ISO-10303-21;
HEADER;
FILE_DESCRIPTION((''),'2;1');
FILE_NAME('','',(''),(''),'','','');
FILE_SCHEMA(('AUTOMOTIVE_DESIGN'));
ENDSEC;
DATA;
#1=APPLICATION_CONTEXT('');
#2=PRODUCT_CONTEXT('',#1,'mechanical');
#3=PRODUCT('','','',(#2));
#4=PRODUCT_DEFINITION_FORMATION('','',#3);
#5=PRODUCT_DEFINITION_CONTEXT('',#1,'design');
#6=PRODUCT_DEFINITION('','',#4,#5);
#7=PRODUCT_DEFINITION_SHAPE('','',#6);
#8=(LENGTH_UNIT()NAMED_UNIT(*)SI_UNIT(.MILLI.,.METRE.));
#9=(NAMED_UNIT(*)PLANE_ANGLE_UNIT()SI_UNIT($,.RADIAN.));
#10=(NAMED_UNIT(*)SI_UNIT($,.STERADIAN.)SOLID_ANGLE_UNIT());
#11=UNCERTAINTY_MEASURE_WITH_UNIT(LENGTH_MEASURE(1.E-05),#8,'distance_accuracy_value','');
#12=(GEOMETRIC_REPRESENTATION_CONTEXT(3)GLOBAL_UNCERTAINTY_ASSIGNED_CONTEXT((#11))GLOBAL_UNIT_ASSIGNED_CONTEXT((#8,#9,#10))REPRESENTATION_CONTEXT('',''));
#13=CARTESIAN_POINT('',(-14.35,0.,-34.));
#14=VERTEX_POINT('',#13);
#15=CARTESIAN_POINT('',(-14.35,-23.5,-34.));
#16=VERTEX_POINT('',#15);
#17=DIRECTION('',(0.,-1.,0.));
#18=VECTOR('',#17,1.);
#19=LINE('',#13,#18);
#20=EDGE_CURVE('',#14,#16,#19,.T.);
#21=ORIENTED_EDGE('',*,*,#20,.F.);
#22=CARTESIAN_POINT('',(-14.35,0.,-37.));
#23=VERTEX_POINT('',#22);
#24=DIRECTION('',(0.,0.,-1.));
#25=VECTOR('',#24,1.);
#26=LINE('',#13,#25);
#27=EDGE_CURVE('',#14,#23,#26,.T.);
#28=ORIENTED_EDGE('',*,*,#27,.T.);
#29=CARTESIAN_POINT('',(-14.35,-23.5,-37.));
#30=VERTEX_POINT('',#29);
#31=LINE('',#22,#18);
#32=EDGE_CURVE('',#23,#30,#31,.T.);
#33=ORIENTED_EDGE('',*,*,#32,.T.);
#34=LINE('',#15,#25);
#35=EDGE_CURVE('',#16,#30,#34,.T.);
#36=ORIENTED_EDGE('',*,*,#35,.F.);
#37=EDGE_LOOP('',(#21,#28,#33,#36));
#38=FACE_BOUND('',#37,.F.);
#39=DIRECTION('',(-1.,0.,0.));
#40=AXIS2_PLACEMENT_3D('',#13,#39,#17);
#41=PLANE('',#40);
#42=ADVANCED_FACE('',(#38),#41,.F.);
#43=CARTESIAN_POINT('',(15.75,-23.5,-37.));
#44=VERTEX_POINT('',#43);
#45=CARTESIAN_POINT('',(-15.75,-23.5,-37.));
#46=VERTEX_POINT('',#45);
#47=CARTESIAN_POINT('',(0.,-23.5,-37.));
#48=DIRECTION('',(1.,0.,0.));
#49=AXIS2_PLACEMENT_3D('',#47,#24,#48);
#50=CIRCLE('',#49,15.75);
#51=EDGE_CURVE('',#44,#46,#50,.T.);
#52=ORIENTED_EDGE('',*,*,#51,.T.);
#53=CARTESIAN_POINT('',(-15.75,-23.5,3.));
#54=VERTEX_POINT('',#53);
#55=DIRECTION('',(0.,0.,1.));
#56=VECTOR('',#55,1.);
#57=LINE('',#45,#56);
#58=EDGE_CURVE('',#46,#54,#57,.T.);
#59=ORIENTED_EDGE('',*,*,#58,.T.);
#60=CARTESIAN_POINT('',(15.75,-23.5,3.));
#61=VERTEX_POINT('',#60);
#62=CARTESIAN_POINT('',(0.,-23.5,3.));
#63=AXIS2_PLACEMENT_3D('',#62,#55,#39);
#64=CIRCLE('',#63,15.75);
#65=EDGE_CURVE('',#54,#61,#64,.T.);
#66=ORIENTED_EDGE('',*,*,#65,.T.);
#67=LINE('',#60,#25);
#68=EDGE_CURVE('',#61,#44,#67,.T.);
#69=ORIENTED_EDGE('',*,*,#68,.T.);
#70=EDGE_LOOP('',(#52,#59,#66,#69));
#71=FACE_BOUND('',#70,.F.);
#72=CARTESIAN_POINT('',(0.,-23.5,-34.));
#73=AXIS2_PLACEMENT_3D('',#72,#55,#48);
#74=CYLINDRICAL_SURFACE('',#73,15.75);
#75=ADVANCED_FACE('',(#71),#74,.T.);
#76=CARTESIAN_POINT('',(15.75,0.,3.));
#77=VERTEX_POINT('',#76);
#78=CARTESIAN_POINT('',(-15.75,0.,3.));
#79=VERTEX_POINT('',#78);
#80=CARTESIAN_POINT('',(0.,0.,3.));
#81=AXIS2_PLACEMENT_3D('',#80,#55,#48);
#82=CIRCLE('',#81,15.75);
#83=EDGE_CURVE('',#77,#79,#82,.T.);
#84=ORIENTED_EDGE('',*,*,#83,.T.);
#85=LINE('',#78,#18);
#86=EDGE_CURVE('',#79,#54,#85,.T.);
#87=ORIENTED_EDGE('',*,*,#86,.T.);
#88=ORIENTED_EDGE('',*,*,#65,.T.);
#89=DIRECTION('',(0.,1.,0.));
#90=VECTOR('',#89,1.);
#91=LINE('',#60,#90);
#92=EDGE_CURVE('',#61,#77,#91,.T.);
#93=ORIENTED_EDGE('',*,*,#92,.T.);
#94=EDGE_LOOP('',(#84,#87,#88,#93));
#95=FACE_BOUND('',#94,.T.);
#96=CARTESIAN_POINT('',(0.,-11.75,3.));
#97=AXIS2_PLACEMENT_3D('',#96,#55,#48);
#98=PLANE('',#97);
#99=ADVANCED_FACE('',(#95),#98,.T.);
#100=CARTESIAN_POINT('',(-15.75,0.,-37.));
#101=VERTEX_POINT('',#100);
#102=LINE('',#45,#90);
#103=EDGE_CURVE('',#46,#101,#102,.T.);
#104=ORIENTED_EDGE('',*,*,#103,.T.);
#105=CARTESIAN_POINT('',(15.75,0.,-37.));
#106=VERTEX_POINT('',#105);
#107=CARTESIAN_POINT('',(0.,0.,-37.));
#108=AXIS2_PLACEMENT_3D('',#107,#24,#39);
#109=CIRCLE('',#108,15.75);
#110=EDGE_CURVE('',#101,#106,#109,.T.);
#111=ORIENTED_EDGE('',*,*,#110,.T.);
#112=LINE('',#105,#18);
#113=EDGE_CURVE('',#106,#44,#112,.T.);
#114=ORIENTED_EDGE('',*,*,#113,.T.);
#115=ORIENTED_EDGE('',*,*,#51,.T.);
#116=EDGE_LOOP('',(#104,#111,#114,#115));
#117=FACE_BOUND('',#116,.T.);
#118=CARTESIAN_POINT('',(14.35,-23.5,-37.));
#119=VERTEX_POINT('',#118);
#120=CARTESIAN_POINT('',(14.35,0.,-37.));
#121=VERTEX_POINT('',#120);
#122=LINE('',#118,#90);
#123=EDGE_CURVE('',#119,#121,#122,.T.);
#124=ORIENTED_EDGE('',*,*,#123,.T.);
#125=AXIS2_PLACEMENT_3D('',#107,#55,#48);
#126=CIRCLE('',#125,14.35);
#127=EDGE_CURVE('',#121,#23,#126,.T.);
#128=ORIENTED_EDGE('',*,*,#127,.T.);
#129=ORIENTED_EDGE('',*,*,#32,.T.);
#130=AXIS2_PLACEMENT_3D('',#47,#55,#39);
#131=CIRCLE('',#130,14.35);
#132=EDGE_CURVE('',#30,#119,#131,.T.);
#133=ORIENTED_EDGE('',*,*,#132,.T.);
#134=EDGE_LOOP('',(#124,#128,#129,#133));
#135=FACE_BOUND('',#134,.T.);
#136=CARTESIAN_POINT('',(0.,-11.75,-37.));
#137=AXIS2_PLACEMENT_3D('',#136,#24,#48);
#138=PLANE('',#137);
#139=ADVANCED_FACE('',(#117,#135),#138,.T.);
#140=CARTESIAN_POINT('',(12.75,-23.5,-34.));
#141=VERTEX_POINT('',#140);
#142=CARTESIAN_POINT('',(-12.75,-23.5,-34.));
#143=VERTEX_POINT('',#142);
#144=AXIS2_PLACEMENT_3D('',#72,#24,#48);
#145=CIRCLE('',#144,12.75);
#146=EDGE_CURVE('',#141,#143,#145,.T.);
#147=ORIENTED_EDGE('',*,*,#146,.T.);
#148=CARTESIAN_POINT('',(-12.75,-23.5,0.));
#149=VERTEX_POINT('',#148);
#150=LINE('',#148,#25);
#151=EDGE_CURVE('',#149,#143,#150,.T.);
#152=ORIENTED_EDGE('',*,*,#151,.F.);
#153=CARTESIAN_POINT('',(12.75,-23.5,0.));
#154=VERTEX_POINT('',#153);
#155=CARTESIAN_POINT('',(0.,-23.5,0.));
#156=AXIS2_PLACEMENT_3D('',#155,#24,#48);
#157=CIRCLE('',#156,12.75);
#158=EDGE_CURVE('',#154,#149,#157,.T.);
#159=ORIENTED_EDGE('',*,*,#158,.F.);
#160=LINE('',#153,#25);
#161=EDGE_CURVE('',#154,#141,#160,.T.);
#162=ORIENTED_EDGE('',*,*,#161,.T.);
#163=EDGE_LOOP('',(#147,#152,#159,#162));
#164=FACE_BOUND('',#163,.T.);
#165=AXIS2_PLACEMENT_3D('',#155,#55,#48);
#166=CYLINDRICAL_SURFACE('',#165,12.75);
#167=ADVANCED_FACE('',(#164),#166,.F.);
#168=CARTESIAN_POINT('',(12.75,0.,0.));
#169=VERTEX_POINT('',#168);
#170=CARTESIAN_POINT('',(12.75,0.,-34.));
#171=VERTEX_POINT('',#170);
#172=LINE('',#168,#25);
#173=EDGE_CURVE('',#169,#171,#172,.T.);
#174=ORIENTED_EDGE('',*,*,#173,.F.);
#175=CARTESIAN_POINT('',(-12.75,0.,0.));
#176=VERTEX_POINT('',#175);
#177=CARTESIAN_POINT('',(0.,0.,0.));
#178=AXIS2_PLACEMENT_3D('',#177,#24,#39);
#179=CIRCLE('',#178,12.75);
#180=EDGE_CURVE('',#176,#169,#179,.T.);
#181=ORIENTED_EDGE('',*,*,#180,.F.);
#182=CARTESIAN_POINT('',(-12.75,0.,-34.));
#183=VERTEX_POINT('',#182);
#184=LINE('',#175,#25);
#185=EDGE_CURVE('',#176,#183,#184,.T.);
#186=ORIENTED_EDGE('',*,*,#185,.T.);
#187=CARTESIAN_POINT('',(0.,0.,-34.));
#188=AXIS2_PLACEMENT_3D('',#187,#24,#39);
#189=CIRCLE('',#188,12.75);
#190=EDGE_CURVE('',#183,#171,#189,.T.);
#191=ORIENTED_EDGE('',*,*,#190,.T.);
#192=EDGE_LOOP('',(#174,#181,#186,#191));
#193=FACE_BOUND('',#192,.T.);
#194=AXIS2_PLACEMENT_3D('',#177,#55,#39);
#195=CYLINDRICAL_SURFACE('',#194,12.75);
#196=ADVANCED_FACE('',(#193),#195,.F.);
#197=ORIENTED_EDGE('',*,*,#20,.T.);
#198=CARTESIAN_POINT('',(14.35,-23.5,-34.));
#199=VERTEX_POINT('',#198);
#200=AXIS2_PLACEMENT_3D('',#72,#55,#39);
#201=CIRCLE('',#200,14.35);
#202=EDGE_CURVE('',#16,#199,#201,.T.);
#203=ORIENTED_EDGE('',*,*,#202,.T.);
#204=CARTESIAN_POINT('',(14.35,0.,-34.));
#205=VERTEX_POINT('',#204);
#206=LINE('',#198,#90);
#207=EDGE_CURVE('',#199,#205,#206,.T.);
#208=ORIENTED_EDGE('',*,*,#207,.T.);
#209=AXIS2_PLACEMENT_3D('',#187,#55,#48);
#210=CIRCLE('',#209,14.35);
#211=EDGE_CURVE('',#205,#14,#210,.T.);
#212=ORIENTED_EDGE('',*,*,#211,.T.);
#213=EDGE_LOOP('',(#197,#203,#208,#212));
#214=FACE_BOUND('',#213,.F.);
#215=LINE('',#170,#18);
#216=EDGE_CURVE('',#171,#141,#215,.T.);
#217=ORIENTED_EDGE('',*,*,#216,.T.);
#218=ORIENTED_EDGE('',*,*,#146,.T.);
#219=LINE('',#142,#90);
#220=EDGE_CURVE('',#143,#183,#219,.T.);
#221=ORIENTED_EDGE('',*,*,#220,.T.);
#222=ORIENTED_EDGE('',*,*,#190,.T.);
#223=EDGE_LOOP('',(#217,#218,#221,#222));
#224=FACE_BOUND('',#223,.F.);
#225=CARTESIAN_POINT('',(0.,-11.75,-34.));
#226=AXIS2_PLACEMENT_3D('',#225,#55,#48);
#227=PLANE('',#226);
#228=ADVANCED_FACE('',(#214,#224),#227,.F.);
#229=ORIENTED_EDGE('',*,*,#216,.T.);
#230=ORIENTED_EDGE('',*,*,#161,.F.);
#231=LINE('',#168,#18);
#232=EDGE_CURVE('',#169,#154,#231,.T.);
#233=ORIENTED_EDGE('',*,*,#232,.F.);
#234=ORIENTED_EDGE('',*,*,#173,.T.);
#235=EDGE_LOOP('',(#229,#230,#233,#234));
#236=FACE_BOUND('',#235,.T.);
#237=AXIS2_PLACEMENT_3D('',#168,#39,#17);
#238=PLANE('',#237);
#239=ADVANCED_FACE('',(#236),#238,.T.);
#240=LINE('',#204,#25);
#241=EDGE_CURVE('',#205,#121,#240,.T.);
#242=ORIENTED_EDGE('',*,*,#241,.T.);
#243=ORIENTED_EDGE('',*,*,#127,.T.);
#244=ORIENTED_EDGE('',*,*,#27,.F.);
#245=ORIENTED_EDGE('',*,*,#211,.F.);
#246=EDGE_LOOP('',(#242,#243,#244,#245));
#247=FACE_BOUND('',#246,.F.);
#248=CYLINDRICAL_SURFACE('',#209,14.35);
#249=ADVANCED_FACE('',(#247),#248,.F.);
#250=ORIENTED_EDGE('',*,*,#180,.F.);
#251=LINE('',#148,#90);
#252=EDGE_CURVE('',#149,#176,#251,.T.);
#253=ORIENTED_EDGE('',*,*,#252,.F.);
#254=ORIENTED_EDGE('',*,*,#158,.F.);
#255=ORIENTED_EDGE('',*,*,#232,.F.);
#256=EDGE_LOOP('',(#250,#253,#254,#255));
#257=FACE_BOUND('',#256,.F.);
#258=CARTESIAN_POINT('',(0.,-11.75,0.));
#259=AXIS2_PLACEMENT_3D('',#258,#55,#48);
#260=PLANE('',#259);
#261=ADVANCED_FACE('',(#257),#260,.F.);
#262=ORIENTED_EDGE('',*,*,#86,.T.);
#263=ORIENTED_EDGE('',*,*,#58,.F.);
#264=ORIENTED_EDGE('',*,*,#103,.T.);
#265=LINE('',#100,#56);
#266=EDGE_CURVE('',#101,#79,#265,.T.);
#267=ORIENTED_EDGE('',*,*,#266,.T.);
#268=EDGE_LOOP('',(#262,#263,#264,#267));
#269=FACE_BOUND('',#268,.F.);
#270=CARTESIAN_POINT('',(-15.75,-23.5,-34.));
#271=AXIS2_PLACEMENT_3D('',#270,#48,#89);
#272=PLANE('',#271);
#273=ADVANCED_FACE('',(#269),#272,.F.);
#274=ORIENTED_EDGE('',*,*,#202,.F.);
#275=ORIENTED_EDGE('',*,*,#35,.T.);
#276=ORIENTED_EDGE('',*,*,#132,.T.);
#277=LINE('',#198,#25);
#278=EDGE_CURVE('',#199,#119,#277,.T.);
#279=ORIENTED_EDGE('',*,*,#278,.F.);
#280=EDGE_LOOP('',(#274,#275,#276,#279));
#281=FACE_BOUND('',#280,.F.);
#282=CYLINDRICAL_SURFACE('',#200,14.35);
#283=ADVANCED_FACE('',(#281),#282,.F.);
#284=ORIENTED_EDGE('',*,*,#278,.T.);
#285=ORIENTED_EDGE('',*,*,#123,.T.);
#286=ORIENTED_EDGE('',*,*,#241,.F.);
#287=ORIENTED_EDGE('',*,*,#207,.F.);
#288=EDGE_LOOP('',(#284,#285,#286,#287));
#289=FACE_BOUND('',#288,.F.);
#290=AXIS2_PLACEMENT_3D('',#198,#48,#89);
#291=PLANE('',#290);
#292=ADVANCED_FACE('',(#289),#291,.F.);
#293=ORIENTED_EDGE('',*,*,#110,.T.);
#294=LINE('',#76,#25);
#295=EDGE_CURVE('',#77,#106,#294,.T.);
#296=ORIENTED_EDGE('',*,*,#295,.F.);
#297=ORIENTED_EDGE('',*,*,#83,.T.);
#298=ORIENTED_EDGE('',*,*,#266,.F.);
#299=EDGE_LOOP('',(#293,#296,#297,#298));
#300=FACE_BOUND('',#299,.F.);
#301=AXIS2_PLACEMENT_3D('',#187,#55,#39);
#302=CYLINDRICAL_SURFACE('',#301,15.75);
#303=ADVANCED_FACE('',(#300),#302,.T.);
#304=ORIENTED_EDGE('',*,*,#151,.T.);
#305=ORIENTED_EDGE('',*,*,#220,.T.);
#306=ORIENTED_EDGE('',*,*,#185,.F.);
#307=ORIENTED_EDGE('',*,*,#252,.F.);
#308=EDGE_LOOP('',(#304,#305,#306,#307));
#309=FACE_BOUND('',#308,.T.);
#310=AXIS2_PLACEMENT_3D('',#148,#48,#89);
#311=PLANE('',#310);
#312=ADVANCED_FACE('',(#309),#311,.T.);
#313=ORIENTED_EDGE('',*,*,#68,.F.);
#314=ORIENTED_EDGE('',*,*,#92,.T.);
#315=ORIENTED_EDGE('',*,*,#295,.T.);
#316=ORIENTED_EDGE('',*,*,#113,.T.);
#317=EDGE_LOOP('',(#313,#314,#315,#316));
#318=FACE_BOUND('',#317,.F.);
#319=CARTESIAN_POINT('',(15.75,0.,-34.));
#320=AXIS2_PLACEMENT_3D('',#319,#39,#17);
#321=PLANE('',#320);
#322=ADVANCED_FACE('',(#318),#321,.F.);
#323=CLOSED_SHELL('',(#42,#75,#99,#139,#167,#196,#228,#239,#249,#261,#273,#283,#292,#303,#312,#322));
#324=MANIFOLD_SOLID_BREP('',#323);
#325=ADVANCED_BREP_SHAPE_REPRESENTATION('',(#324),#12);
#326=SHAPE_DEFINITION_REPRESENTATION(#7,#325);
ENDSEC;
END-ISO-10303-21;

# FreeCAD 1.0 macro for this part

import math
import FreeCAD as App
import Part
import Sketcher
Q = App.Units.Quantity

doc = App.newDocument("Part")
body = doc.addObject("PartDesign::Body", "Body")

sketch1 = body.newObject("Sketcher::SketchObject", "Sketch")
sketch1.AttachmentSupport = (doc.getObject("XY_Plane"), [""])
sketch1.MapMode = "FlatFace"
sketch1.addGeometry([
    Part.LineSegment(App.Vector(16, -24, 0), App.Vector(16, 0, 0)),
    Part.ArcOfCircle(Part.Circle(App.Vector(0, 0, 0), App.Vector(0, 0, 1), 16), math.radians(0), math.radians(180)),
    Part.LineSegment(App.Vector(-16, 0, 0), App.Vector(-16, -24, 0)),
    Part.ArcOfCircle(Part.Circle(App.Vector(0, -24, 0), App.Vector(0, 0, 1), 16), math.radians(180), math.radians(360)),
], False)
sketch1.addConstraint([
    Sketcher.Constraint("Tangent", 0, 2, 1, 1),
    Sketcher.Constraint("Tangent", 1, 2, 2, 1),
    Sketcher.Constraint("Tangent", 2, 2, 3, 1),
    Sketcher.Constraint("Tangent", 3, 2, 0, 1),
    Sketcher.Constraint("Vertical", 0),
    Sketcher.Constraint("Vertical", 2),
    Sketcher.Constraint("Coincident", 1, 3, -1, 1),
    Sketcher.Constraint("Radius", 1, Q("15.75 mm")),
    Sketcher.Constraint("DistanceY", 0, 1, 0, 2, Q("23.5 mm")),
])
pad1 = body.newObject("PartDesign::Pad", "Pad")
pad1.Profile = sketch1
pad1.Length = 3

sketch2 = body.newObject("Sketcher::SketchObject", "Sketch001")
sketch2.AttachmentSupport = (doc.getObject("XY_Plane"), [""])
sketch2.MapMode = "FlatFace"
sketch2.addGeometry([
    Part.LineSegment(App.Vector(16, -24, 0), App.Vector(16, 0, 0)),
    Part.ArcOfCircle(Part.Circle(App.Vector(0, 0, 0), App.Vector(0, 0, 1), 16), math.radians(0), math.radians(180)),
    Part.LineSegment(App.Vector(-16, 0, 0), App.Vector(-16, -24, 0)),
    Part.ArcOfCircle(Part.Circle(App.Vector(0, -24, 0), App.Vector(0, 0, 1), 16), math.radians(180), math.radians(360)),
    Part.LineSegment(App.Vector(-13, -24, 0), App.Vector(-13, 0, 0)),
    Part.ArcOfCircle(Part.Circle(App.Vector(0, 0, 0), App.Vector(0, 0, 1), 13), math.radians(0), math.radians(180)),
    Part.LineSegment(App.Vector(13, 0, 0), App.Vector(13, -24, 0)),
    Part.ArcOfCircle(Part.Circle(App.Vector(0, -24, 0), App.Vector(0, 0, 1), 13), math.radians(180), math.radians(360)),
], False)
sketch2.addConstraint([
    Sketcher.Constraint("Tangent", 0, 2, 1, 1),
    Sketcher.Constraint("Tangent", 1, 2, 2, 1),
    Sketcher.Constraint("Tangent", 2, 2, 3, 1),
    Sketcher.Constraint("Tangent", 3, 2, 0, 1),
    Sketcher.Constraint("Tangent", 4, 2, 5, 2),
    Sketcher.Constraint("Tangent", 5, 1, 6, 1),
    Sketcher.Constraint("Tangent", 6, 2, 7, 2),
    Sketcher.Constraint("Tangent", 7, 1, 4, 1),
    Sketcher.Constraint("Vertical", 0),
    Sketcher.Constraint("Vertical", 2),
    Sketcher.Constraint("Vertical", 4),
    Sketcher.Constraint("Vertical", 6),
    Sketcher.Constraint("Coincident", 1, 3, -1, 1),
    Sketcher.Constraint("Coincident", 5, 3, -1, 1),
    Sketcher.Constraint("Horizontal", 7, 3, 2, 2),
    Sketcher.Constraint("Radius", 1, Q("15.75 mm")),
    Sketcher.Constraint("Radius", 5, Q("12.75 mm")),
    Sketcher.Constraint("DistanceY", 0, 1, 0, 2, Q("23.5 mm")),
])
pad2 = body.newObject("PartDesign::Pad", "Pad001")
pad2.Profile = sketch2
pad2.Length = 34
pad2.Reversed = True

sketch3 = body.newObject("Sketcher::SketchObject", "Sketch002")
sketch3.AttachmentSupport = (doc.getObject("XY_Plane"), [""])
sketch3.MapMode = "FlatFace"
sketch3.AttachmentOffset = App.Placement(App.Vector(0, 0, -34), App.Rotation())
sketch3.addGeometry([
    Part.ArcOfCircle(Part.Circle(App.Vector(0, 0, 0), App.Vector(0, 0, 1), 16), math.radians(0), math.radians(180)),
    Part.LineSegment(App.Vector(16, 0, 0), App.Vector(16, -24, 0)),
    Part.ArcOfCircle(Part.Circle(App.Vector(0, -24, 0), App.Vector(0, 0, 1), 16), math.radians(180), math.radians(360)),
    Part.LineSegment(App.Vector(-16, -24, 0), App.Vector(-16, 0, 0)),
    Part.ArcOfCircle(Part.Circle(App.Vector(0, 0, 0), App.Vector(0, 0, 1), 14), math.radians(0), math.radians(180)),
    Part.LineSegment(App.Vector(-14, 0, 0), App.Vector(-14, -24, 0)),
    Part.ArcOfCircle(Part.Circle(App.Vector(0, -24, 0), App.Vector(0, 0, 1), 14), math.radians(180), math.radians(360)),
    Part.LineSegment(App.Vector(14, -24, 0), App.Vector(14, 0, 0)),
], False)
sketch3.addConstraint([
    Sketcher.Constraint("Tangent", 0, 1, 1, 1),
    Sketcher.Constraint("Tangent", 1, 2, 2, 2),
    Sketcher.Constraint("Tangent", 2, 1, 3, 1),
    Sketcher.Constraint("Tangent", 3, 2, 0, 2),
    Sketcher.Constraint("Tangent", 4, 2, 5, 1),
    Sketcher.Constraint("Tangent", 5, 2, 6, 1),
    Sketcher.Constraint("Tangent", 6, 2, 7, 1),
    Sketcher.Constraint("Tangent", 7, 2, 4, 1),
    Sketcher.Constraint("Vertical", 1),
    Sketcher.Constraint("Vertical", 3),
    Sketcher.Constraint("Vertical", 5),
    Sketcher.Constraint("Vertical", 7),
    Sketcher.Constraint("Coincident", 0, 3, -1, 1),
    Sketcher.Constraint("Coincident", 4, 3, -1, 1),
    Sketcher.Constraint("Horizontal", 6, 3, 1, 2),
    Sketcher.Constraint("Radius", 0, Q("15.75 mm")),
    Sketcher.Constraint("Radius", 4, Q("14.35 mm")),
    Sketcher.Constraint("DistanceY", 1, 2, 1, 1, Q("23.5 mm")),
])
pad3 = body.newObject("PartDesign::Pad", "Pad002")
pad3.Profile = sketch3
pad3.Length = 3
pad3.Reversed = True

doc.recompute()
